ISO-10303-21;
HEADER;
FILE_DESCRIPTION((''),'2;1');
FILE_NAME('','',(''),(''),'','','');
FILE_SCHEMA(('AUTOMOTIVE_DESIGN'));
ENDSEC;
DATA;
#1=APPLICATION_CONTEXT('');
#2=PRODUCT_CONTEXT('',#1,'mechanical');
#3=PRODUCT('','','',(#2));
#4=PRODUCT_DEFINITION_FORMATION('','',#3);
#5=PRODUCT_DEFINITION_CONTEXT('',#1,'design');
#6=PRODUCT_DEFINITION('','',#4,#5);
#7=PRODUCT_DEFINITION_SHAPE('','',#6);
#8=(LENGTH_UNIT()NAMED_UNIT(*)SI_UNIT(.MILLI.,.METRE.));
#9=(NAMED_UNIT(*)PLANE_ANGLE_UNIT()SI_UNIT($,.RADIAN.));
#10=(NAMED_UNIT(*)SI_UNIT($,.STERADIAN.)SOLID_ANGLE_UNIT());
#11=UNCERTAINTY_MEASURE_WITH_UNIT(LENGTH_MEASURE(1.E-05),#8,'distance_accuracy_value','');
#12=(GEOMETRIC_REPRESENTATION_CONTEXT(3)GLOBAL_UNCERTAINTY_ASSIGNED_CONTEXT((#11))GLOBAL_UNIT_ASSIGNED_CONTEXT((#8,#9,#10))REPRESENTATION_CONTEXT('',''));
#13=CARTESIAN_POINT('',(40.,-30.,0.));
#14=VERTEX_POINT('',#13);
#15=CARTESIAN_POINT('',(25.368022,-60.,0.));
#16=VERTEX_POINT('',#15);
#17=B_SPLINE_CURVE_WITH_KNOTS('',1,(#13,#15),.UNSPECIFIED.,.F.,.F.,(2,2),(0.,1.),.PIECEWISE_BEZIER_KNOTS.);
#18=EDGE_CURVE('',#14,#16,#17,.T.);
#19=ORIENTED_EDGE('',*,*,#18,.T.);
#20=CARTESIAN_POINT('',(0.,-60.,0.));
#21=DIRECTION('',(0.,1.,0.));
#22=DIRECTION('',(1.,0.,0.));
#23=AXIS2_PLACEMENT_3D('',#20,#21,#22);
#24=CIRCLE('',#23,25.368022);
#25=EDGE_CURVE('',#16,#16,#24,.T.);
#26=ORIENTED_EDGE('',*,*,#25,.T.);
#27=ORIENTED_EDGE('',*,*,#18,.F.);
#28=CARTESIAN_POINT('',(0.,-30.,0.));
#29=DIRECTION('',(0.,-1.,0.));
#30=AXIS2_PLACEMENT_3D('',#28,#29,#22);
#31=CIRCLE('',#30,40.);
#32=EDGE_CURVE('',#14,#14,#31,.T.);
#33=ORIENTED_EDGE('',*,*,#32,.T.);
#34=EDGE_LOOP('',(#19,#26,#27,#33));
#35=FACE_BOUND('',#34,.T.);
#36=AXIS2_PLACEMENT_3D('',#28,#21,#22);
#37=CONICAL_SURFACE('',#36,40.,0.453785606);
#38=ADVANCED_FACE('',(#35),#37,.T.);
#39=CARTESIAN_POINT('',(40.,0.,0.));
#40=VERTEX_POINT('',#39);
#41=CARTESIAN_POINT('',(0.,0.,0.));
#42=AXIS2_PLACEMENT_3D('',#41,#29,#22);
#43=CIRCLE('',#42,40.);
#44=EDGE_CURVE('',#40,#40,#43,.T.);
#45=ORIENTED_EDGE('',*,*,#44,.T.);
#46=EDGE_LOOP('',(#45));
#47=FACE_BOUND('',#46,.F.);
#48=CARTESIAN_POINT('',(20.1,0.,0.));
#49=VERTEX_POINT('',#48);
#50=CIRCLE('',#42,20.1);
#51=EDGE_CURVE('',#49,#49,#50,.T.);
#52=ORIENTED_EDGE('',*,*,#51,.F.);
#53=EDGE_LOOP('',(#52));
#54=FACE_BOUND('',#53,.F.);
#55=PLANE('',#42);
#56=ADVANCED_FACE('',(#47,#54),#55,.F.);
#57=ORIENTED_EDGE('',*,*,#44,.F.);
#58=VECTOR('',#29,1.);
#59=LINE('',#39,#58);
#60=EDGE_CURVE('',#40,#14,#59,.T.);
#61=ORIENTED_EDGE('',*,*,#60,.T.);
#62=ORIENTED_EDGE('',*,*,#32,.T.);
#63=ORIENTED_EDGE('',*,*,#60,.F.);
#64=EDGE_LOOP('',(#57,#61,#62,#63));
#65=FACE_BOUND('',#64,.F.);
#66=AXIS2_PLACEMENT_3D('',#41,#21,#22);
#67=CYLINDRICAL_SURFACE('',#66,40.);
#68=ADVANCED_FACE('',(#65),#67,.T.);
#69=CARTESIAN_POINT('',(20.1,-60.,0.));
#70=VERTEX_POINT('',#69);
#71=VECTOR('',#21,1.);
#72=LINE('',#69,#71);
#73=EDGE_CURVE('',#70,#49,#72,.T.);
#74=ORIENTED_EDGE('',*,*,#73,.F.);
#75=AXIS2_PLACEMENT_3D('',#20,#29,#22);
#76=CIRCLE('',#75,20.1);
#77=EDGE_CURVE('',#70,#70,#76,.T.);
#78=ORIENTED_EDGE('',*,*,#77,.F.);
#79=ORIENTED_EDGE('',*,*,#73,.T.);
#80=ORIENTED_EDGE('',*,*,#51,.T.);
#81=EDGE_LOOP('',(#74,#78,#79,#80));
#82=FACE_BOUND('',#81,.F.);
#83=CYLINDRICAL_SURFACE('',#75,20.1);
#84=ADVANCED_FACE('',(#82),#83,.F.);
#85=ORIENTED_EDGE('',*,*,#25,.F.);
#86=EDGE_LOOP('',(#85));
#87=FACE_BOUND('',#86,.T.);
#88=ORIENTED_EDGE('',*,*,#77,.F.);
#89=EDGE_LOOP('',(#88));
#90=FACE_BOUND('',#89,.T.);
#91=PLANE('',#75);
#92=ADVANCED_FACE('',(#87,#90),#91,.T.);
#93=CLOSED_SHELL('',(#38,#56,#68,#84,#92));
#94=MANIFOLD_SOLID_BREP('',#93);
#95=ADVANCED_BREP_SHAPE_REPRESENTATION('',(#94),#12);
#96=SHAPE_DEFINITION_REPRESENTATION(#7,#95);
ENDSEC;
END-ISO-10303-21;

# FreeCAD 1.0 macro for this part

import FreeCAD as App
import Part
import Sketcher
from FreeCAD import Vector
Q = App.Units.Quantity

doc = App.newDocument("Part")
body = doc.addObject("PartDesign::Body", "Body")

# Sketch on XZ plane
sketch1 = body.newObject("Sketcher::SketchObject", "Sketch")
sketch1.AttachmentSupport = (doc.getObject("XZ_Plane"), [""])
sketch1.MapMode = "FlatFace"
sketch1.addGeometry(Part.Circle(Vector(0, 0, 0), Vector(0, 0, 1), 40), False)
sketch1.addConstraint(Sketcher.Constraint("Coincident", 0, 3, -1, 1))
sketch1.addConstraint(Sketcher.Constraint("Diameter", 0, Q("80 mm")))
pad1 = body.newObject("PartDesign::Pad", "Pad")
pad1.Profile = sketch1
pad1.Length = 30

# Sketch on XZ plane
sketch2 = body.newObject("Sketcher::SketchObject", "Sketch001")
sketch2.AttachmentSupport = (doc.getObject("XZ_Plane"), [""])
sketch2.MapMode = "FlatFace"
sketch2.AttachmentOffset = App.Placement(Vector(0, 0, 30), App.Rotation())
sketch2.addGeometry(Part.Circle(Vector(0, 0, 0), Vector(0, 0, 1), 40), False)
sketch2.addConstraint(Sketcher.Constraint("Coincident", 0, 3, -1, 1))
sketch2.addConstraint(Sketcher.Constraint("Diameter", 0, Q("80 mm")))
pad2 = body.newObject("PartDesign::Pad", "Pad001")
pad2.Profile = sketch2
pad2.Length = 30
pad2.TaperAngle = -26

# Sketch on XZ plane
sketch3 = body.newObject("Sketcher::SketchObject", "Sketch002")
sketch3.AttachmentSupport = (doc.getObject("XZ_Plane"), [""])
sketch3.MapMode = "FlatFace"
sketch3.AttachmentOffset = App.Placement(Vector(0, 0, 60), App.Rotation())
sketch3.addGeometry(Part.Circle(Vector(0, 0, 0), Vector(0, 0, 1), 20.1), False)
sketch3.addConstraint(Sketcher.Constraint("Coincident", 0, 3, -1, 1))
sketch3.addConstraint(Sketcher.Constraint("Diameter", 0, Q("40.2 mm")))
pocket1 = body.newObject("PartDesign::Pocket", "Pocket")
pocket1.Profile = sketch3
pocket1.Type = "ThroughAll"

doc.recompute()
